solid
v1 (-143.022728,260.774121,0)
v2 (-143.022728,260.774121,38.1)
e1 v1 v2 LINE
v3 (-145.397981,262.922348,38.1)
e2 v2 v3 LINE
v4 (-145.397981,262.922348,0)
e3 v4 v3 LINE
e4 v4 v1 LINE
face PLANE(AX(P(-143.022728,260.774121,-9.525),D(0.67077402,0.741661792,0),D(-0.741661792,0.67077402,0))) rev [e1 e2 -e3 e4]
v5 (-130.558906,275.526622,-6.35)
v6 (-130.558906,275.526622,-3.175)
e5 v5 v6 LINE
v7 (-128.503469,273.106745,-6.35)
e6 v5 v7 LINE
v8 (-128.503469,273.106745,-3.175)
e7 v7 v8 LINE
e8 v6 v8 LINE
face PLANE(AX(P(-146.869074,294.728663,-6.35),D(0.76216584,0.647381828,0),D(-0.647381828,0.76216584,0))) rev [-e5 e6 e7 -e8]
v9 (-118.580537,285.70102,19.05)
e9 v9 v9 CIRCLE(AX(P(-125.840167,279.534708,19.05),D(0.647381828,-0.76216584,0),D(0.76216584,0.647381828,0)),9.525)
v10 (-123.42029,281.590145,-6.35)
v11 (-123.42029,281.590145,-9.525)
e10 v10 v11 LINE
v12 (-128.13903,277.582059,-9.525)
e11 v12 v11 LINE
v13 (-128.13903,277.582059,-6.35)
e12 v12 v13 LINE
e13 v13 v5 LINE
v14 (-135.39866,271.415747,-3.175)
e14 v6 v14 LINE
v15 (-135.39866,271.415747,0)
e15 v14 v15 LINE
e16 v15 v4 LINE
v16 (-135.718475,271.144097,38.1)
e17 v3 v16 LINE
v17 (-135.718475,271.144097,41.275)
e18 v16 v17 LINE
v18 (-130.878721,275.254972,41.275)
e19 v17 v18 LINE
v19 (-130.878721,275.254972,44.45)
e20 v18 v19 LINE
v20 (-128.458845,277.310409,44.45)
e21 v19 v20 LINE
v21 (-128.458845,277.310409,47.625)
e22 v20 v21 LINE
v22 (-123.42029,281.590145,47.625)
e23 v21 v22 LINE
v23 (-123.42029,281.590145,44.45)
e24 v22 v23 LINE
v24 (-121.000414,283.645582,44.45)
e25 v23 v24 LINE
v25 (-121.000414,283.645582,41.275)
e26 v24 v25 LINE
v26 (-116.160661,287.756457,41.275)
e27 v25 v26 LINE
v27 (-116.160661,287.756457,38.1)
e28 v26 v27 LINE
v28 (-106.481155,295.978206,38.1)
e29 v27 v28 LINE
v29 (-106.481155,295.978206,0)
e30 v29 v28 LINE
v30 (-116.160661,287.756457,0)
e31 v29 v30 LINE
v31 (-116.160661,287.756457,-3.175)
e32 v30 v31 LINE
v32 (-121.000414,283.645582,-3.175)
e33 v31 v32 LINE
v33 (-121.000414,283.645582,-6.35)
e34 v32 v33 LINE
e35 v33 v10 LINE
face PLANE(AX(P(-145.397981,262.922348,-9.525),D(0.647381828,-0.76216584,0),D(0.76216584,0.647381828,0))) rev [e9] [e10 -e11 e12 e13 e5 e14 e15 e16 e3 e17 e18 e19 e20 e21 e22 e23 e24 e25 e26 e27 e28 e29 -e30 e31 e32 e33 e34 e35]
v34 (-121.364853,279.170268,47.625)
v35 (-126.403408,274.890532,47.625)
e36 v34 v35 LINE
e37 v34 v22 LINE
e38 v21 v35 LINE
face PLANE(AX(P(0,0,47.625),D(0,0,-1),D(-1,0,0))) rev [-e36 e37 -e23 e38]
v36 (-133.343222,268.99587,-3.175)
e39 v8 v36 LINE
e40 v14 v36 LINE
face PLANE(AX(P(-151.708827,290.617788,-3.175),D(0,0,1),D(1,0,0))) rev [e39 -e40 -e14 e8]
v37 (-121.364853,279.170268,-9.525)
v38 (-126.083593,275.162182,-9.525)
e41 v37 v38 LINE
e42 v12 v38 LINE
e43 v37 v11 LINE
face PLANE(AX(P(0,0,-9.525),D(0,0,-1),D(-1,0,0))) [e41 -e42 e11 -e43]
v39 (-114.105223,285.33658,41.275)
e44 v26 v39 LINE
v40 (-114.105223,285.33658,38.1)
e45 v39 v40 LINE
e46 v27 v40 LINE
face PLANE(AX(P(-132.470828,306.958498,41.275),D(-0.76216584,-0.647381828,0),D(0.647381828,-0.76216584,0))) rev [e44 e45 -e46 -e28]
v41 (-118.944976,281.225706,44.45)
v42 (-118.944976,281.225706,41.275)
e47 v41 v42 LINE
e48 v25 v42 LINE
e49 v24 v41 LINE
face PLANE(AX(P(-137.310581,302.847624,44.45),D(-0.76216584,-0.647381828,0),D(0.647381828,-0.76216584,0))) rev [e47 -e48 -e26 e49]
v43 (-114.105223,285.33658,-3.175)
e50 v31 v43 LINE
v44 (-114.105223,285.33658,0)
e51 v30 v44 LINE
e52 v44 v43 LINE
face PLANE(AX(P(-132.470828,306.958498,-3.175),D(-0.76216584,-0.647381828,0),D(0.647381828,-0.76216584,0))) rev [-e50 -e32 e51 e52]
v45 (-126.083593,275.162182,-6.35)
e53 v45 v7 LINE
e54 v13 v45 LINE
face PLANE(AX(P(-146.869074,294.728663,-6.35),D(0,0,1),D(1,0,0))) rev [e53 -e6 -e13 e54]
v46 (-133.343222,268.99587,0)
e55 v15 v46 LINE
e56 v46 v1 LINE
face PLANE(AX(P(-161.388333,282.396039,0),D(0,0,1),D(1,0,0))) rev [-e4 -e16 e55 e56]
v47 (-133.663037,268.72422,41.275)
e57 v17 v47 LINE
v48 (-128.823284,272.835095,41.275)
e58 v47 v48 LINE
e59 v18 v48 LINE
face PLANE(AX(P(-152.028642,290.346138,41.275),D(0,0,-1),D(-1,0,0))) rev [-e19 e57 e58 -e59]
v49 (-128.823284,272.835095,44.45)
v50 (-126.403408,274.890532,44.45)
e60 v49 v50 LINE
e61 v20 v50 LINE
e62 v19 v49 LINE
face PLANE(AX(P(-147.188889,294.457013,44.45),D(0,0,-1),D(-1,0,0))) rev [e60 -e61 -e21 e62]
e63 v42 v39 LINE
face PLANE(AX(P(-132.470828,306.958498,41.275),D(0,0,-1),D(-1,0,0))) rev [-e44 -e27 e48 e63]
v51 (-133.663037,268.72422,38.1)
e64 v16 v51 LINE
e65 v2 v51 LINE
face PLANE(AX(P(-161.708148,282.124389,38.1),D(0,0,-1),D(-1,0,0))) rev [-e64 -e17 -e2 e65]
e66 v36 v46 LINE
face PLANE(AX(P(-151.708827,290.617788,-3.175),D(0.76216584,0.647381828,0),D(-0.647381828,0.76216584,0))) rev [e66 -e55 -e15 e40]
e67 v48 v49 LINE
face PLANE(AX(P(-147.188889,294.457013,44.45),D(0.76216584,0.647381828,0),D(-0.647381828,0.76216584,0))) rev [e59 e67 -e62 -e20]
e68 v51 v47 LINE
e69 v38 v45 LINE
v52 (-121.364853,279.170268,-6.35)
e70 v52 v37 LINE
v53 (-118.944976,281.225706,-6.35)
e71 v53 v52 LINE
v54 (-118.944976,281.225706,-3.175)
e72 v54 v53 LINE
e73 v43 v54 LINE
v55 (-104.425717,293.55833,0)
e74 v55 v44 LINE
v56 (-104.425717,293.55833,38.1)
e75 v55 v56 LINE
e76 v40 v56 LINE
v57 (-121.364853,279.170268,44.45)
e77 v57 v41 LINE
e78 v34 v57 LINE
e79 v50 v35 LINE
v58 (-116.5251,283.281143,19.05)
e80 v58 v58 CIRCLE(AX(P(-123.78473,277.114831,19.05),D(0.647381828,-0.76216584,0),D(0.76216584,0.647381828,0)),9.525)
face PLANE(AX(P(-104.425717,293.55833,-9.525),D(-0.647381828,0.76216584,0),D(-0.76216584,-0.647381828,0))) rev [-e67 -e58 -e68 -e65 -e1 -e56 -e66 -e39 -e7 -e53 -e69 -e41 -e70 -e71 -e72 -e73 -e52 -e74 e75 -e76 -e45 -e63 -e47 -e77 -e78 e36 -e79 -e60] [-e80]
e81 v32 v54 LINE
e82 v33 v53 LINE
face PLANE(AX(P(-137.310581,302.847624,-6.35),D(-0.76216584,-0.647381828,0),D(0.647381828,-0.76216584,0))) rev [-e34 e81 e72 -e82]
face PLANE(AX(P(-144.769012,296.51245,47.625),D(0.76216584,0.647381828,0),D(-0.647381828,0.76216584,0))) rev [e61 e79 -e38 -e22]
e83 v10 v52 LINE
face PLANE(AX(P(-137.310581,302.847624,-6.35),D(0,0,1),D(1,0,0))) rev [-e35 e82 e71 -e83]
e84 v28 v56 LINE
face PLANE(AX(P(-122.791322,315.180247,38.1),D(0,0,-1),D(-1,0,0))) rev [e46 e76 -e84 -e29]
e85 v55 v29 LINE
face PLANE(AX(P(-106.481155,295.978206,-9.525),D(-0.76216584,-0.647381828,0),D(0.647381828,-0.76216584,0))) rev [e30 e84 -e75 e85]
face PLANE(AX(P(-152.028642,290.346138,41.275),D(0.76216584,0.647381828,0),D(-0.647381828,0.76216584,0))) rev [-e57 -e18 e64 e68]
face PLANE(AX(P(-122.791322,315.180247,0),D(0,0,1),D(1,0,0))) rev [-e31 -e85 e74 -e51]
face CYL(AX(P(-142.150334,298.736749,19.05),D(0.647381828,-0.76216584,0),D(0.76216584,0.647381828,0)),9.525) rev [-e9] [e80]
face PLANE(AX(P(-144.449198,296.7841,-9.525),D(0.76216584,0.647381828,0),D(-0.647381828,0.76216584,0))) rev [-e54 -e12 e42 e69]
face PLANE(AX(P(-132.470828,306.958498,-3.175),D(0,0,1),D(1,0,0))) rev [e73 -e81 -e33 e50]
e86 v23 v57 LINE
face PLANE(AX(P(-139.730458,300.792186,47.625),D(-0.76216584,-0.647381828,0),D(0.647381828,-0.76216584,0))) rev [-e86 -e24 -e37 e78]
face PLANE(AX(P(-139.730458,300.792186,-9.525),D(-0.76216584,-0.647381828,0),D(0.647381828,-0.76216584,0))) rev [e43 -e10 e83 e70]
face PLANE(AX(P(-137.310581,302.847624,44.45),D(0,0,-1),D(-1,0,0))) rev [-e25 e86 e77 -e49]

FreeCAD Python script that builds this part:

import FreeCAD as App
import Part
import Sketcher

V = App.Vector
Q = App.Units.Quantity

doc = App.newDocument("Part")
params = doc.addObject("Spreadsheet::Sheet", "Params")
for row, (alias, value) in enumerate([
    ("sketch1_length", "0.125 in"),
    ("pad1_length", "1.875 in"),
    ("pad1_length2", "0.375 in"),
    ("sketch2_diameter", "0.75 in"),
    ("sketch2_width", "0.25 in"),
], start=1):
    params.set(f"A{row}", alias)
    params.set(f"B{row}", "=" + value)
    params.setAlias(f"B{row}", alias)

body = doc.addObject("PartDesign::Body", "Body")

# Sketch on XY plane
sketch1 = body.newObject("Sketcher::SketchObject", "Sketch")
sketch1.AttachmentSupport = (doc.getObject("XY_Plane"), [""])
sketch1.MapMode = "FlatFace"
sketch1.addGeometry([
    Part.LineSegment(V(-143.022728, 260.774121, 0), V(-104.425717, 293.55833, 0)),
    Part.LineSegment(V(-104.425717, 293.55833, 0), V(-106.481155, 295.978206, 0)),
    Part.LineSegment(V(-106.481155, 295.978206, 0), V(-145.397981, 262.922348, 0)),
    Part.LineSegment(V(-145.397981, 262.922348, 0), V(-143.022728, 260.774121, 0)),
], False)
sketch1.addConstraint([
    Sketcher.Constraint("Coincident", 0, 2, 1, 1),
    Sketcher.Constraint("Coincident", 1, 2, 2, 1),
    Sketcher.Constraint("Coincident", 2, 2, 3, 1),
    Sketcher.Constraint("Coincident", 3, 2, 0, 1),
    Sketcher.Constraint("Perpendicular", 0, 1),
    Sketcher.Constraint("Perpendicular", 1, 2),
    Sketcher.Constraint("Distance", 1, Q("0.125 in")),
    Sketcher.Constraint("Distance", 3, 3.202608),
    Sketcher.Constraint("DistanceY", -1, 1, 0, 2, 293.55833),
    Sketcher.Constraint("DistanceX", 2, 2, -1, 1, 145.397981),
    Sketcher.Constraint("DistanceX", 3, 2, -1, 1, 143.022728),
    Sketcher.Constraint("DistanceY", -1, 1, 3, 2, 260.774121),
])
sketch1.setExpression("Constraints[6]", "Params.sketch1_length")
pad1 = body.newObject("PartDesign::Pad", "Pad")
pad1.Profile = sketch1
pad1.Type = "TwoLengths"
pad1.setExpression("Length", "Params.pad1_length")
pad1.setExpression("Length2", "Params.pad1_length2")

# Sketch on an angled plane
sketch2 = body.newObject("Sketcher::SketchObject", "Sketch001")
sketch2.Placement = App.Placement(V(-188.610451, 222.05202, 0), App.Rotation(V(0.76216584, 0.647381828, 0), V(0, 0, 0.999999999), V(0.647381828, -0.76216584, 0), "ZXY"))
sketch2.addGeometry([
    Part.Circle(V(85.1, 19, 0), V(0, 0, 1), 9.5),  # 0
    Part.LineSegment(V(88.2, -9.5, 0), V(113.7, -9.5, 0)),  # 1
    Part.LineSegment(V(113.7, -9.5, 0), V(113.7, 0, 0)),  # 2
    Part.LineSegment(V(113.7, 0, 0), V(97.8, 0, 0)),  # 3
    Part.LineSegment(V(97.8, 0, 0), V(97.8, -3.2, 0)),  # 4
    Part.LineSegment(V(97.8, -3.2, 0), V(91.4, -3.2, 0)),  # 5
    Part.LineSegment(V(91.4, -3.2, 0), V(91.4, -6.3, 0)),  # 6
    Part.LineSegment(V(91.4, -6.3, 0), V(88.2, -6.3, 0)),  # 7
    Part.LineSegment(V(88.2, -6.3, 0), V(88.2, -9.5, 0)),  # 8
    Part.LineSegment(V(82, -9.5, 0), V(82, -6.3, 0)),  # 9
    Part.LineSegment(V(82, -6.3, 0), V(78.9, -6.3, 0)),  # 10
    Part.LineSegment(V(78.9, -6.3, 0), V(78.9, -3.2, 0)),  # 11
    Part.LineSegment(V(78.9, -3.2, 0), V(72.5, -3.2, 0)),  # 12
    Part.LineSegment(V(72.5, -3.2, 0), V(72.5, 0, 0)),  # 13
    Part.LineSegment(V(72.5, 0, 0), V(54.8, 0, 0)),  # 14
    Part.LineSegment(V(54.8, 0, 0), V(54.8, -9.5, 0)),  # 15
    Part.LineSegment(V(54.8, -9.5, 0), V(82, -9.5, 0)),  # 16
    Part.LineSegment(V(118.2, 38.1, 0), V(118.2, 47.6, 0)),  # 17
    Part.LineSegment(V(118.2, 47.6, 0), V(88.2, 47.6, 0)),  # 18
    Part.LineSegment(V(88.2, 47.6, 0), V(88.2, 44.4, 0)),  # 19
    Part.LineSegment(V(88.2, 44.4, 0), V(91.4, 44.4, 0)),  # 20
    Part.LineSegment(V(91.4, 44.4, 0), V(91.4, 41.3, 0)),  # 21
    Part.LineSegment(V(91.4, 41.3, 0), V(97.8, 41.3, 0)),  # 22
    Part.LineSegment(V(97.8, 41.3, 0), V(97.8, 38.1, 0)),  # 23
    Part.LineSegment(V(97.8, 38.1, 0), V(118.2, 38.1, 0)),  # 24
    Part.LineSegment(V(50.3, 38.1, 0), V(72.1, 38.1, 0)),  # 25
    Part.LineSegment(V(72.1, 38.1, 0), V(72.1, 41.3, 0)),  # 26
    Part.LineSegment(V(72.1, 41.3, 0), V(78.4, 41.3, 0)),  # 27
    Part.LineSegment(V(78.4, 41.3, 0), V(78.4, 44.4, 0)),  # 28
    Part.LineSegment(V(78.4, 44.4, 0), V(81.6, 44.4, 0)),  # 29
    Part.LineSegment(V(81.6, 44.4, 0), V(81.6, 47.6, 0)),  # 30
    Part.LineSegment(V(81.6, 47.6, 0), V(50.3, 47.6, 0)),  # 31
    Part.LineSegment(V(50.3, 47.6, 0), V(50.3, 38.1, 0)),  # 32
], False)
sketch2.addConstraint([
    Sketcher.Constraint("Coincident", 1, 2, 2, 1),
    Sketcher.Constraint("Coincident", 2, 2, 3, 1),
    Sketcher.Constraint("Coincident", 3, 2, 4, 1),
    Sketcher.Constraint("Coincident", 4, 2, 5, 1),
    Sketcher.Constraint("Coincident", 5, 2, 6, 1),
    Sketcher.Constraint("Coincident", 6, 2, 7, 1),
    Sketcher.Constraint("Coincident", 7, 2, 8, 1),
    Sketcher.Constraint("Coincident", 8, 2, 1, 1),
    Sketcher.Constraint("Coincident", 9, 2, 10, 1),
    Sketcher.Constraint("Coincident", 10, 2, 11, 1),
    Sketcher.Constraint("Coincident", 11, 2, 12, 1),
    Sketcher.Constraint("Coincident", 12, 2, 13, 1),
    Sketcher.Constraint("Coincident", 13, 2, 14, 1),
    Sketcher.Constraint("Coincident", 14, 2, 15, 1),
    Sketcher.Constraint("Coincident", 15, 2, 16, 1),
    Sketcher.Constraint("Coincident", 16, 2, 9, 1),
    Sketcher.Constraint("Coincident", 17, 2, 18, 1),
    Sketcher.Constraint("Coincident", 18, 2, 19, 1),
    Sketcher.Constraint("Coincident", 19, 2, 20, 1),
    Sketcher.Constraint("Coincident", 20, 2, 21, 1),
    Sketcher.Constraint("Coincident", 21, 2, 22, 1),
    Sketcher.Constraint("Coincident", 22, 2, 23, 1),
    Sketcher.Constraint("Coincident", 23, 2, 24, 1),
    Sketcher.Constraint("Coincident", 24, 2, 17, 1),
    Sketcher.Constraint("Coincident", 25, 2, 26, 1),
    Sketcher.Constraint("Coincident", 26, 2, 27, 1),
    Sketcher.Constraint("Coincident", 27, 2, 28, 1),
    Sketcher.Constraint("Coincident", 28, 2, 29, 1),
    Sketcher.Constraint("Coincident", 29, 2, 30, 1),
    Sketcher.Constraint("Coincident", 30, 2, 31, 1),
    Sketcher.Constraint("Coincident", 31, 2, 32, 1),
    Sketcher.Constraint("Coincident", 32, 2, 25, 1),
    Sketcher.Constraint("Horizontal", 1),
    Sketcher.Constraint("Vertical", 2),
    Sketcher.Constraint("Horizontal", 3),
    Sketcher.Constraint("Vertical", 4),
    Sketcher.Constraint("Horizontal", 5),
    Sketcher.Constraint("Vertical", 6),
    Sketcher.Constraint("Horizontal", 7),
    Sketcher.Constraint("Vertical", 8),
    Sketcher.Constraint("Vertical", 9),
    Sketcher.Constraint("Horizontal", 10),
    Sketcher.Constraint("Vertical", 11),
    Sketcher.Constraint("Horizontal", 12),
    Sketcher.Constraint("Vertical", 13),
    Sketcher.Constraint("Horizontal", 14),
    Sketcher.Constraint("Vertical", 15),
    Sketcher.Constraint("Horizontal", 16),
    Sketcher.Constraint("Vertical", 17),
    Sketcher.Constraint("Horizontal", 18),
    Sketcher.Constraint("Vertical", 19),
    Sketcher.Constraint("Horizontal", 20),
    Sketcher.Constraint("Vertical", 21),
    Sketcher.Constraint("Horizontal", 22),
    Sketcher.Constraint("Vertical", 23),
    Sketcher.Constraint("Horizontal", 24),
    Sketcher.Constraint("Horizontal", 25),
    Sketcher.Constraint("Vertical", 26),
    Sketcher.Constraint("Horizontal", 27),
    Sketcher.Constraint("Vertical", 28),
    Sketcher.Constraint("Horizontal", 29),
    Sketcher.Constraint("Vertical", 30),
    Sketcher.Constraint("Horizontal", 31),
    Sketcher.Constraint("Vertical", 32),
    Sketcher.Constraint("PointOnObject", 2, 2, -1),
    Sketcher.Constraint("PointOnObject", 13, 2, -1),
    Sketcher.Constraint("Horizontal", 7, 2, 9, 2),
    Sketcher.Constraint("Horizontal", 5, 2, 11, 2),
    Sketcher.Constraint("Horizontal", 8, 2, 15, 2),
    Sketcher.Constraint("Horizontal", 24, 2, 25, 2),
    Sketcher.Constraint("Horizontal", 22, 2, 26, 2),
    Sketcher.Constraint("Horizontal", 20, 2, 28, 2),
    Sketcher.Constraint("Horizontal", 18, 2, 30, 2),
    Sketcher.Constraint("Vertical", 8, 2, 18, 2),
    Sketcher.Constraint("Vertical", 6, 2, 20, 2),
    Sketcher.Constraint("Vertical", 4, 2, 22, 2),
    Sketcher.Constraint("Equal", 7, 10),
    Sketcher.Constraint("Equal", 5, 12),
    Sketcher.Constraint("Equal", 22, 27),
    Sketcher.Constraint("Equal", 20, 29),
    Sketcher.Constraint("Equal", 29, 4),
    Sketcher.Constraint("Equal", 4, 6),
    Sketcher.Constraint("Equal", 6, 8),
    Sketcher.Constraint("Equal", 15, 17),
    Sketcher.Constraint("Equal", 13, 19),
    Sketcher.Constraint("Equal", 19, 21),
    Sketcher.Constraint("Diameter", 0, Q("0.75 in")),
    Sketcher.Constraint("DistanceY", 7, 2, 0, 3, Q("1 in")),
    Sketcher.Constraint("DistanceY", 4, 2, 17, 2, Q("2 in")),
    Sketcher.Constraint("DistanceX", 5, 2, 5, 1, Q("0.25 in")),
    Sketcher.Constraint("DistanceY", -1, 1, 23, 2, Q("1.5 in")),
    Sketcher.Constraint("DistanceX", 0, 3, 3, 2, Q("0.5 in")),
    Sketcher.Constraint("DistanceX", 1, 1, 1, 2, 25.450258),
    Sketcher.Constraint("DistanceX", 14, 2, 14, 1, 17.682582),
    Sketcher.Constraint("DistanceX", 18, 2, 18, 1, 29.96274),
    Sketcher.Constraint("DistanceX", 25, 1, 25, 2, 21.754638),
    Sketcher.Constraint("DistanceX", -1, 1, 1, 2, 113.679872),
    Sketcher.Constraint("DistanceX", -1, 1, 9, 2, 82.038389),
    Sketcher.Constraint("DistanceX", -1, 1, 25, 2, 72.093776),
])
sketch2.setExpression("Constraints[86]", "Params.sketch2_diameter")
sketch2.setExpression("Constraints[89]", "Params.sketch2_width")
pocket1 = body.newObject("PartDesign::Pocket", "Pocket")
pocket1.Profile = sketch2
pocket1.Type = "ThroughAll"

doc.recompute()
